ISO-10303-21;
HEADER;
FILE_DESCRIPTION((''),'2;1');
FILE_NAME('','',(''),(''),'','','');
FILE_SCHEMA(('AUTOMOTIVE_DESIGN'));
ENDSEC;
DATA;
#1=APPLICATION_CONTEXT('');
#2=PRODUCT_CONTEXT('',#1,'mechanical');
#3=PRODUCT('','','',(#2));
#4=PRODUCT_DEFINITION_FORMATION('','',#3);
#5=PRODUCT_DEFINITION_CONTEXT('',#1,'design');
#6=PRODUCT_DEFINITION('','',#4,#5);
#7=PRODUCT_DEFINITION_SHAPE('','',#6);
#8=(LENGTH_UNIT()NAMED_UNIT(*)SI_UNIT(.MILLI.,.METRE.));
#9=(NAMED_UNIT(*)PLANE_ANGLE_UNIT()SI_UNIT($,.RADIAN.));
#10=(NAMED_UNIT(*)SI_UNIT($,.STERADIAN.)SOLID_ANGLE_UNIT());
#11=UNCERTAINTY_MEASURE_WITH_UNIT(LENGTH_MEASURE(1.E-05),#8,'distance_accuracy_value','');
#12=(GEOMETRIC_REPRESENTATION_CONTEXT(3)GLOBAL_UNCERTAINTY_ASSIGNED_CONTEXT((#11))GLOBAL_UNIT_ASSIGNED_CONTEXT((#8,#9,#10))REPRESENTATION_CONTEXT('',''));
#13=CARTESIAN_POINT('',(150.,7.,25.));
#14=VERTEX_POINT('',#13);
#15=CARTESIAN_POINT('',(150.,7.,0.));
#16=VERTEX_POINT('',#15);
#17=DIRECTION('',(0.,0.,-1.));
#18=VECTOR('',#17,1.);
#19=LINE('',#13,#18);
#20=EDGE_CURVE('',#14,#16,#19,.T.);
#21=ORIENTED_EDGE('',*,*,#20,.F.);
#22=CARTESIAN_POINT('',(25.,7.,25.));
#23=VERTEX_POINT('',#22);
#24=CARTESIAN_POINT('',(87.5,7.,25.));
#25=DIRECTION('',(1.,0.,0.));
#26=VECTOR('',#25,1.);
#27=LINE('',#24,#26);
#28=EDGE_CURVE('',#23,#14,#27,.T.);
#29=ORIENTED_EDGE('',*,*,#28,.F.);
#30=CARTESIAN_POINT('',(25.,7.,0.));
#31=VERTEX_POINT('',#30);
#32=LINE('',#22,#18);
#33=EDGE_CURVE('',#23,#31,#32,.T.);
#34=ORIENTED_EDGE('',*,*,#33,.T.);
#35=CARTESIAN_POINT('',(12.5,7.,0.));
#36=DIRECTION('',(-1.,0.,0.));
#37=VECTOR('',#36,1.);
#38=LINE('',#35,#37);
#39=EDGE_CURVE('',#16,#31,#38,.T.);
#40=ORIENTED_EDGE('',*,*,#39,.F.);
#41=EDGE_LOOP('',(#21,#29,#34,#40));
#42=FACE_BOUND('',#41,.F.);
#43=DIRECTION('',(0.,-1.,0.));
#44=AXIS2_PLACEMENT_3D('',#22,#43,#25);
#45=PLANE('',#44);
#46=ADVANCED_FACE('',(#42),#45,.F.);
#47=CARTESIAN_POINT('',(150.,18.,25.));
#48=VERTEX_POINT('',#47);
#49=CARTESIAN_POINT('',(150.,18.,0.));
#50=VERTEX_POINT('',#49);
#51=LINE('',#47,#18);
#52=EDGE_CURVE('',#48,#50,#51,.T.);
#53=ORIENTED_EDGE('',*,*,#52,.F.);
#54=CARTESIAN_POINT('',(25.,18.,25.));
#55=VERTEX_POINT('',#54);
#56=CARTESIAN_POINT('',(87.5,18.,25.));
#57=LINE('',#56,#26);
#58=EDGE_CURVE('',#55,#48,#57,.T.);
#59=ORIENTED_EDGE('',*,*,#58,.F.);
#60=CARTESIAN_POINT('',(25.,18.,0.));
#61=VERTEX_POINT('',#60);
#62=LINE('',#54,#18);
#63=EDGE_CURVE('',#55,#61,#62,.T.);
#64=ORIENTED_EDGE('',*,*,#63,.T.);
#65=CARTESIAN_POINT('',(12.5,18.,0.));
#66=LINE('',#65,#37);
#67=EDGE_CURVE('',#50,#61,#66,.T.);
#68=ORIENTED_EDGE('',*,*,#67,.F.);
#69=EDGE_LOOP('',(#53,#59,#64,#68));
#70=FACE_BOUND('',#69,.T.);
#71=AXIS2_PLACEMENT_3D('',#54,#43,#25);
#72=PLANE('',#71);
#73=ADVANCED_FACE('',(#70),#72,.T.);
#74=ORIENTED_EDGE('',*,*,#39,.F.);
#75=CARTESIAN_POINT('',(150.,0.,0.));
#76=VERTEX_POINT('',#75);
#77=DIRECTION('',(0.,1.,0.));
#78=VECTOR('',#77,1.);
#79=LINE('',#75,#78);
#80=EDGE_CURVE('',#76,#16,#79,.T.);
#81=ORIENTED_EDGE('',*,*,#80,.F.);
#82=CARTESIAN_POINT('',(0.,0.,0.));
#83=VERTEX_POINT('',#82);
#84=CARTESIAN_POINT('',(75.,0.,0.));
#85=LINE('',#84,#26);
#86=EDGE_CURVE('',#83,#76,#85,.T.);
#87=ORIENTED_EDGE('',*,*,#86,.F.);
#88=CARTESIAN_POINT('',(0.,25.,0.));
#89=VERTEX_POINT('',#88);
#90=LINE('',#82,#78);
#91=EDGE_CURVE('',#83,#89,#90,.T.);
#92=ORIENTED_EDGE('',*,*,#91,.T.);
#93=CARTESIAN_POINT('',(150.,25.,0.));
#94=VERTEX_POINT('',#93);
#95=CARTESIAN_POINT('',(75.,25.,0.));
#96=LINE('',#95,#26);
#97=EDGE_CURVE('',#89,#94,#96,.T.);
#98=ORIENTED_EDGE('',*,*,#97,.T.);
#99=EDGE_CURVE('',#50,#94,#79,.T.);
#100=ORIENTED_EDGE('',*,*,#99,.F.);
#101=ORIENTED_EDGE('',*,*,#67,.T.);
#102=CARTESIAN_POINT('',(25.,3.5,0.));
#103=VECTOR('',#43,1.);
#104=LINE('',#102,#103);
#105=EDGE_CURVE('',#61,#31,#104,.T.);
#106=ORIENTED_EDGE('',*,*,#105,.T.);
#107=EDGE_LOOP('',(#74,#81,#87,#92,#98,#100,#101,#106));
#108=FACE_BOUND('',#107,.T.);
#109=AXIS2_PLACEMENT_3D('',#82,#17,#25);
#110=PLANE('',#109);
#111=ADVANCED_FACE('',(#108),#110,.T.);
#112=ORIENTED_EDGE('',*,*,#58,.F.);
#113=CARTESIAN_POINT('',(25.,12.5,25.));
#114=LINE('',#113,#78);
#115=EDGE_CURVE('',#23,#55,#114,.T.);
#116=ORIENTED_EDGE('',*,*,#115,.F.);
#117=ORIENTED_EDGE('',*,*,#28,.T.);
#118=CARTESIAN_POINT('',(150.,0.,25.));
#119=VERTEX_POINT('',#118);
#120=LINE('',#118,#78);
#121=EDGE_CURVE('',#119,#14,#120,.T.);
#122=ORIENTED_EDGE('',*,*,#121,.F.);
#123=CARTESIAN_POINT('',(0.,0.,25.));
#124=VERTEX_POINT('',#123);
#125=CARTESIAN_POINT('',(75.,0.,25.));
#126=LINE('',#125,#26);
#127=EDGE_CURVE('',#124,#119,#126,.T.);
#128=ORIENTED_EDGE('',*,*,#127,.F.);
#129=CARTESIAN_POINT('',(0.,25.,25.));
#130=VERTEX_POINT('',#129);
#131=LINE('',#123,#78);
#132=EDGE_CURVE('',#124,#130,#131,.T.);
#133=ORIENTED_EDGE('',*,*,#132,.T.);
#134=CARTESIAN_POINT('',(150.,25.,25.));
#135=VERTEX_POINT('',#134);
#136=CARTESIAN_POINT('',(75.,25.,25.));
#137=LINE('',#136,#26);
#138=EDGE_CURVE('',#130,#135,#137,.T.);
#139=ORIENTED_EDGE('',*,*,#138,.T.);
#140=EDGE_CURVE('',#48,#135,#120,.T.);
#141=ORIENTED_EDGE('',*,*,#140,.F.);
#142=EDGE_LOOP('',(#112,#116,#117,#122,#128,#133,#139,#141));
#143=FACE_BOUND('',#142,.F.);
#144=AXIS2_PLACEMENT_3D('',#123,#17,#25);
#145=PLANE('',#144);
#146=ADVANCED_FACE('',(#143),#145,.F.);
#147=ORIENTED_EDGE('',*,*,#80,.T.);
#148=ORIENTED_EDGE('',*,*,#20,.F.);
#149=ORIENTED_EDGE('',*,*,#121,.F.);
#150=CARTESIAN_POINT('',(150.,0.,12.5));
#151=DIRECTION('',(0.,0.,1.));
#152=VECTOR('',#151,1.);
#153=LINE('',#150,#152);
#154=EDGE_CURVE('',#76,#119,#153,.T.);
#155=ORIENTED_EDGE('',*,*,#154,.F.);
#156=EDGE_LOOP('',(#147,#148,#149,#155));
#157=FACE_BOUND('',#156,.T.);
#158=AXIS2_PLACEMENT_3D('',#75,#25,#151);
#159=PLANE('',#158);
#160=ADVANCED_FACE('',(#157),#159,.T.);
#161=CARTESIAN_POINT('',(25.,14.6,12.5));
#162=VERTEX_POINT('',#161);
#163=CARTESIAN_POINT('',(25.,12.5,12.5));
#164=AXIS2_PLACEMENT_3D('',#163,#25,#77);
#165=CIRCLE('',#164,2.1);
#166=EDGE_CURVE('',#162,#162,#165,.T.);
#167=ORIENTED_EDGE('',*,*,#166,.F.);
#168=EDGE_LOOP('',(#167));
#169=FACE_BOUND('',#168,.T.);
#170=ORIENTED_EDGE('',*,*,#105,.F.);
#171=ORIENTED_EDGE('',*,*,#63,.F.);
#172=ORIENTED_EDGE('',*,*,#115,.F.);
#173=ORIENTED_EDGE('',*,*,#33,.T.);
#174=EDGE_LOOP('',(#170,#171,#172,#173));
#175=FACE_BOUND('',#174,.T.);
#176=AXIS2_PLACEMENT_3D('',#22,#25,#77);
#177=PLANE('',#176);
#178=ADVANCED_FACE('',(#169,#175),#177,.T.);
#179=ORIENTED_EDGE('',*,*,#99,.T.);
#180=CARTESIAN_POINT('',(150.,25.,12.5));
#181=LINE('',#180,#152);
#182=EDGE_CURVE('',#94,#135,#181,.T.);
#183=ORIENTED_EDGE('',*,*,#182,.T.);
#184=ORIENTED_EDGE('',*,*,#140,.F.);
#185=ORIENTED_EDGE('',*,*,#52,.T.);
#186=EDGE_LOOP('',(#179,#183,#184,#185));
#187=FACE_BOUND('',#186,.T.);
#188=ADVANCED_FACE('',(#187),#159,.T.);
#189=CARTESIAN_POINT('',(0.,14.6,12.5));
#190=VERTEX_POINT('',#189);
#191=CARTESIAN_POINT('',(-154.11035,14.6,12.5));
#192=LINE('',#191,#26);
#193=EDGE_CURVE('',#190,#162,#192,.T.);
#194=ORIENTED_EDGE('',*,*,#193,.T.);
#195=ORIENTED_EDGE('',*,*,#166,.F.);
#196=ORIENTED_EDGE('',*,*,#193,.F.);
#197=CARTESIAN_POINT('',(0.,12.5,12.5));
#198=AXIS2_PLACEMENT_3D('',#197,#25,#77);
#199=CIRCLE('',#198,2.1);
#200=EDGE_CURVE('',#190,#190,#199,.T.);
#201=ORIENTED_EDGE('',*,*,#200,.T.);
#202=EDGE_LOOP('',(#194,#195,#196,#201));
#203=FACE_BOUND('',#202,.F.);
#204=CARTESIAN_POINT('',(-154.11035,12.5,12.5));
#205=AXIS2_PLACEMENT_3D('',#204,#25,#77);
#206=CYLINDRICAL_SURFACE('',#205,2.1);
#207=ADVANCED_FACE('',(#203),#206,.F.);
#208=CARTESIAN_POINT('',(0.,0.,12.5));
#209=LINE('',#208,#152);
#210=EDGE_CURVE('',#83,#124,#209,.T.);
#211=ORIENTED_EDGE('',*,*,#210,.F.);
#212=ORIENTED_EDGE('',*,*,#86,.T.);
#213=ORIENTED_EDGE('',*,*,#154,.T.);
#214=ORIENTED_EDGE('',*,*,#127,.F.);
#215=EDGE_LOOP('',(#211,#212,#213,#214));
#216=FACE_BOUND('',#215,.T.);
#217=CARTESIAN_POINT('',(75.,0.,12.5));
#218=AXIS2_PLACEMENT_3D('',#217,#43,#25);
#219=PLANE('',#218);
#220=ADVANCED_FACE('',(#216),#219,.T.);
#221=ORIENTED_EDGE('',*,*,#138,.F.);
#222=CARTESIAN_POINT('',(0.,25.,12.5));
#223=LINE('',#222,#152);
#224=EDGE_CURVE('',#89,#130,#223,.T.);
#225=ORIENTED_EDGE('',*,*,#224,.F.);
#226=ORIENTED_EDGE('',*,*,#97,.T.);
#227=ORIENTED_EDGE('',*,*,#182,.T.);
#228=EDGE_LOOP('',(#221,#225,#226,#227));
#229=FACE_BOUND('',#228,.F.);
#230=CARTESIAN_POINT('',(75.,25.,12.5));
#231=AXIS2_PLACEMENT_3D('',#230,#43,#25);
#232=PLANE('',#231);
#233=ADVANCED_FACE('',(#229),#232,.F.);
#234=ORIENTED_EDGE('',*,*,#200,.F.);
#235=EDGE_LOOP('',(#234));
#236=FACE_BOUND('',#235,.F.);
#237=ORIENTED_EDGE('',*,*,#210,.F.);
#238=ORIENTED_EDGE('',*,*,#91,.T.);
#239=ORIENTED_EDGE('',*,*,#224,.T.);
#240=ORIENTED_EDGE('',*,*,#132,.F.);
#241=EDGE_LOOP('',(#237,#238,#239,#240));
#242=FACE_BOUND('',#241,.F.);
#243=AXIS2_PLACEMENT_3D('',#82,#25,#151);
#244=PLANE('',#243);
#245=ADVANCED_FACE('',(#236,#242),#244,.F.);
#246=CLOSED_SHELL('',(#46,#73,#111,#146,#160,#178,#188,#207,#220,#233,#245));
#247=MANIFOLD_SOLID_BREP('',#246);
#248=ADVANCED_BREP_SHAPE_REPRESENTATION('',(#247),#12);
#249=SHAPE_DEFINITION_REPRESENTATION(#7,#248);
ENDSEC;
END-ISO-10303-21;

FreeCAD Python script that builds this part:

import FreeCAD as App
import Part
import Sketcher
from FreeCAD import Vector
Q = App.Units.Quantity


def add_polygon(sketch, points):
    """Adds a closed chain of lines whose ends are joined by coincident constraints."""
    first, n = sketch.GeometryCount, len(points)
    for a, b in zip(points, points[1:] + points[:1]):
        sketch.addGeometry(Part.LineSegment(App.Vector(*a, 0), App.Vector(*b, 0)), False)
    for i in range(n):
        sketch.addConstraint(Sketcher.Constraint("Coincident", first + i, 2, first + (i + 1) % n, 1))

doc = App.newDocument("Part")
params = doc.addObject("Spreadsheet::Sheet", "Params")
for row, (alias, value) in enumerate([
    ("sketch1_width", "150 mm"),
    ("sketch1_height", "25 mm"),
    ("pad1_length", "25 mm"),
    ("sketch2_width", "125 mm"),
    ("sketch2_height", "11 mm"),
    ("sketch3_diameter", "4.2 mm"),
    ("hole_diameter", "4.2 mm"),
], start=1):
    params.set(f"A{row}", alias)
    params.set(f"B{row}", "=" + value)
    params.setAlias(f"B{row}", alias)

body = doc.addObject("PartDesign::Body", "Body")

# Sketch on XZ plane
sketch1 = body.newObject("Sketcher::SketchObject", "Sketch")
sketch1.AttachmentSupport = (doc.getObject("XZ_Plane"), [""])
sketch1.MapMode = "FlatFace"
add_polygon(sketch1, [(0, 25), (0, 0), (150, 0), (150, 25)])  # lines 0-3
sketch1.addConstraint([
    Sketcher.Constraint("Vertical", 0),
    Sketcher.Constraint("Horizontal", 1),
    Sketcher.Constraint("Vertical", 2),
    Sketcher.Constraint("Horizontal", 3),
    Sketcher.Constraint("Coincident", 0, 2, -1, 1),
    Sketcher.Constraint("DistanceX", 1, 1, 1, 2, Q("150 mm")),
    Sketcher.Constraint("DistanceY", 0, 2, 0, 1, Q("25 mm")),
])
sketch1.setExpression("Constraints[9]", "Params.sketch1_width")
sketch1.setExpression("Constraints[10]", "Params.sketch1_height")
pad1 = body.newObject("PartDesign::Pad", "Pad")
pad1.Profile = sketch1
pad1.setExpression("Length", "Params.pad1_length")
pad1.Reversed = True

# Sketch on XY plane
sketch2 = body.newObject("Sketcher::SketchObject", "Sketch001")
sketch2.AttachmentSupport = (doc.getObject("XY_Plane"), [""])
sketch2.MapMode = "FlatFace"
sketch2.AttachmentOffset = App.Placement(Vector(0, 0, 25), App.Rotation())
add_polygon(sketch2, [(25, 18), (25, 7), (150, 7), (150, 18)])  # lines 0-3
sketch2.addConstraint([
    Sketcher.Constraint("Vertical", 0),
    Sketcher.Constraint("Horizontal", 1),
    Sketcher.Constraint("Vertical", 2),
    Sketcher.Constraint("Horizontal", 3),
    Sketcher.Constraint("DistanceX", 1, 1, 1, 2, Q("125 mm")),
    Sketcher.Constraint("DistanceY", 0, 2, 0, 1, Q("11 mm")),
    Sketcher.Constraint("DistanceX", -1, 1, 0, 2, Q("25 mm")),
    Sketcher.Constraint("DistanceY", -1, 1, 0, 2, Q("7 mm")),
])
sketch2.setExpression("Constraints[8]", "Params.sketch2_width")
sketch2.setExpression("Constraints[9]", "Params.sketch2_height")
pocket1 = body.newObject("PartDesign::Pocket", "Pocket")
pocket1.Profile = sketch2
pocket1.Type = "ThroughAll"

# Sketch on YZ plane
sketch3 = body.newObject("Sketcher::SketchObject", "Sketch002")
sketch3.AttachmentSupport = (doc.getObject("YZ_Plane"), [""])
sketch3.MapMode = "FlatFace"
sketch3.addGeometry(Part.Circle(Vector(12.5, 12.5, 0), Vector(0, 0, 1), 2.1), False)
sketch3.addConstraint([
    Sketcher.Constraint("Diameter", 0, Q("4.2 mm")),
    Sketcher.Constraint("DistanceX", -1, 1, 0, 3, Q("12.5 mm")),
    Sketcher.Constraint("DistanceY", -1, 1, 0, 3, Q("12.5 mm")),
])
sketch3.setExpression("Constraints[0]", "Params.sketch3_diameter")
doc.recompute()
hole = body.newObject("PartDesign::Hole", "Hole")
hole.Profile = sketch3
hole.ThreadType = "None"
hole.setExpression("Diameter", "Params.hole_diameter")
hole.DepthType = "ThroughAll"
hole.Reversed = True

doc.recompute()
